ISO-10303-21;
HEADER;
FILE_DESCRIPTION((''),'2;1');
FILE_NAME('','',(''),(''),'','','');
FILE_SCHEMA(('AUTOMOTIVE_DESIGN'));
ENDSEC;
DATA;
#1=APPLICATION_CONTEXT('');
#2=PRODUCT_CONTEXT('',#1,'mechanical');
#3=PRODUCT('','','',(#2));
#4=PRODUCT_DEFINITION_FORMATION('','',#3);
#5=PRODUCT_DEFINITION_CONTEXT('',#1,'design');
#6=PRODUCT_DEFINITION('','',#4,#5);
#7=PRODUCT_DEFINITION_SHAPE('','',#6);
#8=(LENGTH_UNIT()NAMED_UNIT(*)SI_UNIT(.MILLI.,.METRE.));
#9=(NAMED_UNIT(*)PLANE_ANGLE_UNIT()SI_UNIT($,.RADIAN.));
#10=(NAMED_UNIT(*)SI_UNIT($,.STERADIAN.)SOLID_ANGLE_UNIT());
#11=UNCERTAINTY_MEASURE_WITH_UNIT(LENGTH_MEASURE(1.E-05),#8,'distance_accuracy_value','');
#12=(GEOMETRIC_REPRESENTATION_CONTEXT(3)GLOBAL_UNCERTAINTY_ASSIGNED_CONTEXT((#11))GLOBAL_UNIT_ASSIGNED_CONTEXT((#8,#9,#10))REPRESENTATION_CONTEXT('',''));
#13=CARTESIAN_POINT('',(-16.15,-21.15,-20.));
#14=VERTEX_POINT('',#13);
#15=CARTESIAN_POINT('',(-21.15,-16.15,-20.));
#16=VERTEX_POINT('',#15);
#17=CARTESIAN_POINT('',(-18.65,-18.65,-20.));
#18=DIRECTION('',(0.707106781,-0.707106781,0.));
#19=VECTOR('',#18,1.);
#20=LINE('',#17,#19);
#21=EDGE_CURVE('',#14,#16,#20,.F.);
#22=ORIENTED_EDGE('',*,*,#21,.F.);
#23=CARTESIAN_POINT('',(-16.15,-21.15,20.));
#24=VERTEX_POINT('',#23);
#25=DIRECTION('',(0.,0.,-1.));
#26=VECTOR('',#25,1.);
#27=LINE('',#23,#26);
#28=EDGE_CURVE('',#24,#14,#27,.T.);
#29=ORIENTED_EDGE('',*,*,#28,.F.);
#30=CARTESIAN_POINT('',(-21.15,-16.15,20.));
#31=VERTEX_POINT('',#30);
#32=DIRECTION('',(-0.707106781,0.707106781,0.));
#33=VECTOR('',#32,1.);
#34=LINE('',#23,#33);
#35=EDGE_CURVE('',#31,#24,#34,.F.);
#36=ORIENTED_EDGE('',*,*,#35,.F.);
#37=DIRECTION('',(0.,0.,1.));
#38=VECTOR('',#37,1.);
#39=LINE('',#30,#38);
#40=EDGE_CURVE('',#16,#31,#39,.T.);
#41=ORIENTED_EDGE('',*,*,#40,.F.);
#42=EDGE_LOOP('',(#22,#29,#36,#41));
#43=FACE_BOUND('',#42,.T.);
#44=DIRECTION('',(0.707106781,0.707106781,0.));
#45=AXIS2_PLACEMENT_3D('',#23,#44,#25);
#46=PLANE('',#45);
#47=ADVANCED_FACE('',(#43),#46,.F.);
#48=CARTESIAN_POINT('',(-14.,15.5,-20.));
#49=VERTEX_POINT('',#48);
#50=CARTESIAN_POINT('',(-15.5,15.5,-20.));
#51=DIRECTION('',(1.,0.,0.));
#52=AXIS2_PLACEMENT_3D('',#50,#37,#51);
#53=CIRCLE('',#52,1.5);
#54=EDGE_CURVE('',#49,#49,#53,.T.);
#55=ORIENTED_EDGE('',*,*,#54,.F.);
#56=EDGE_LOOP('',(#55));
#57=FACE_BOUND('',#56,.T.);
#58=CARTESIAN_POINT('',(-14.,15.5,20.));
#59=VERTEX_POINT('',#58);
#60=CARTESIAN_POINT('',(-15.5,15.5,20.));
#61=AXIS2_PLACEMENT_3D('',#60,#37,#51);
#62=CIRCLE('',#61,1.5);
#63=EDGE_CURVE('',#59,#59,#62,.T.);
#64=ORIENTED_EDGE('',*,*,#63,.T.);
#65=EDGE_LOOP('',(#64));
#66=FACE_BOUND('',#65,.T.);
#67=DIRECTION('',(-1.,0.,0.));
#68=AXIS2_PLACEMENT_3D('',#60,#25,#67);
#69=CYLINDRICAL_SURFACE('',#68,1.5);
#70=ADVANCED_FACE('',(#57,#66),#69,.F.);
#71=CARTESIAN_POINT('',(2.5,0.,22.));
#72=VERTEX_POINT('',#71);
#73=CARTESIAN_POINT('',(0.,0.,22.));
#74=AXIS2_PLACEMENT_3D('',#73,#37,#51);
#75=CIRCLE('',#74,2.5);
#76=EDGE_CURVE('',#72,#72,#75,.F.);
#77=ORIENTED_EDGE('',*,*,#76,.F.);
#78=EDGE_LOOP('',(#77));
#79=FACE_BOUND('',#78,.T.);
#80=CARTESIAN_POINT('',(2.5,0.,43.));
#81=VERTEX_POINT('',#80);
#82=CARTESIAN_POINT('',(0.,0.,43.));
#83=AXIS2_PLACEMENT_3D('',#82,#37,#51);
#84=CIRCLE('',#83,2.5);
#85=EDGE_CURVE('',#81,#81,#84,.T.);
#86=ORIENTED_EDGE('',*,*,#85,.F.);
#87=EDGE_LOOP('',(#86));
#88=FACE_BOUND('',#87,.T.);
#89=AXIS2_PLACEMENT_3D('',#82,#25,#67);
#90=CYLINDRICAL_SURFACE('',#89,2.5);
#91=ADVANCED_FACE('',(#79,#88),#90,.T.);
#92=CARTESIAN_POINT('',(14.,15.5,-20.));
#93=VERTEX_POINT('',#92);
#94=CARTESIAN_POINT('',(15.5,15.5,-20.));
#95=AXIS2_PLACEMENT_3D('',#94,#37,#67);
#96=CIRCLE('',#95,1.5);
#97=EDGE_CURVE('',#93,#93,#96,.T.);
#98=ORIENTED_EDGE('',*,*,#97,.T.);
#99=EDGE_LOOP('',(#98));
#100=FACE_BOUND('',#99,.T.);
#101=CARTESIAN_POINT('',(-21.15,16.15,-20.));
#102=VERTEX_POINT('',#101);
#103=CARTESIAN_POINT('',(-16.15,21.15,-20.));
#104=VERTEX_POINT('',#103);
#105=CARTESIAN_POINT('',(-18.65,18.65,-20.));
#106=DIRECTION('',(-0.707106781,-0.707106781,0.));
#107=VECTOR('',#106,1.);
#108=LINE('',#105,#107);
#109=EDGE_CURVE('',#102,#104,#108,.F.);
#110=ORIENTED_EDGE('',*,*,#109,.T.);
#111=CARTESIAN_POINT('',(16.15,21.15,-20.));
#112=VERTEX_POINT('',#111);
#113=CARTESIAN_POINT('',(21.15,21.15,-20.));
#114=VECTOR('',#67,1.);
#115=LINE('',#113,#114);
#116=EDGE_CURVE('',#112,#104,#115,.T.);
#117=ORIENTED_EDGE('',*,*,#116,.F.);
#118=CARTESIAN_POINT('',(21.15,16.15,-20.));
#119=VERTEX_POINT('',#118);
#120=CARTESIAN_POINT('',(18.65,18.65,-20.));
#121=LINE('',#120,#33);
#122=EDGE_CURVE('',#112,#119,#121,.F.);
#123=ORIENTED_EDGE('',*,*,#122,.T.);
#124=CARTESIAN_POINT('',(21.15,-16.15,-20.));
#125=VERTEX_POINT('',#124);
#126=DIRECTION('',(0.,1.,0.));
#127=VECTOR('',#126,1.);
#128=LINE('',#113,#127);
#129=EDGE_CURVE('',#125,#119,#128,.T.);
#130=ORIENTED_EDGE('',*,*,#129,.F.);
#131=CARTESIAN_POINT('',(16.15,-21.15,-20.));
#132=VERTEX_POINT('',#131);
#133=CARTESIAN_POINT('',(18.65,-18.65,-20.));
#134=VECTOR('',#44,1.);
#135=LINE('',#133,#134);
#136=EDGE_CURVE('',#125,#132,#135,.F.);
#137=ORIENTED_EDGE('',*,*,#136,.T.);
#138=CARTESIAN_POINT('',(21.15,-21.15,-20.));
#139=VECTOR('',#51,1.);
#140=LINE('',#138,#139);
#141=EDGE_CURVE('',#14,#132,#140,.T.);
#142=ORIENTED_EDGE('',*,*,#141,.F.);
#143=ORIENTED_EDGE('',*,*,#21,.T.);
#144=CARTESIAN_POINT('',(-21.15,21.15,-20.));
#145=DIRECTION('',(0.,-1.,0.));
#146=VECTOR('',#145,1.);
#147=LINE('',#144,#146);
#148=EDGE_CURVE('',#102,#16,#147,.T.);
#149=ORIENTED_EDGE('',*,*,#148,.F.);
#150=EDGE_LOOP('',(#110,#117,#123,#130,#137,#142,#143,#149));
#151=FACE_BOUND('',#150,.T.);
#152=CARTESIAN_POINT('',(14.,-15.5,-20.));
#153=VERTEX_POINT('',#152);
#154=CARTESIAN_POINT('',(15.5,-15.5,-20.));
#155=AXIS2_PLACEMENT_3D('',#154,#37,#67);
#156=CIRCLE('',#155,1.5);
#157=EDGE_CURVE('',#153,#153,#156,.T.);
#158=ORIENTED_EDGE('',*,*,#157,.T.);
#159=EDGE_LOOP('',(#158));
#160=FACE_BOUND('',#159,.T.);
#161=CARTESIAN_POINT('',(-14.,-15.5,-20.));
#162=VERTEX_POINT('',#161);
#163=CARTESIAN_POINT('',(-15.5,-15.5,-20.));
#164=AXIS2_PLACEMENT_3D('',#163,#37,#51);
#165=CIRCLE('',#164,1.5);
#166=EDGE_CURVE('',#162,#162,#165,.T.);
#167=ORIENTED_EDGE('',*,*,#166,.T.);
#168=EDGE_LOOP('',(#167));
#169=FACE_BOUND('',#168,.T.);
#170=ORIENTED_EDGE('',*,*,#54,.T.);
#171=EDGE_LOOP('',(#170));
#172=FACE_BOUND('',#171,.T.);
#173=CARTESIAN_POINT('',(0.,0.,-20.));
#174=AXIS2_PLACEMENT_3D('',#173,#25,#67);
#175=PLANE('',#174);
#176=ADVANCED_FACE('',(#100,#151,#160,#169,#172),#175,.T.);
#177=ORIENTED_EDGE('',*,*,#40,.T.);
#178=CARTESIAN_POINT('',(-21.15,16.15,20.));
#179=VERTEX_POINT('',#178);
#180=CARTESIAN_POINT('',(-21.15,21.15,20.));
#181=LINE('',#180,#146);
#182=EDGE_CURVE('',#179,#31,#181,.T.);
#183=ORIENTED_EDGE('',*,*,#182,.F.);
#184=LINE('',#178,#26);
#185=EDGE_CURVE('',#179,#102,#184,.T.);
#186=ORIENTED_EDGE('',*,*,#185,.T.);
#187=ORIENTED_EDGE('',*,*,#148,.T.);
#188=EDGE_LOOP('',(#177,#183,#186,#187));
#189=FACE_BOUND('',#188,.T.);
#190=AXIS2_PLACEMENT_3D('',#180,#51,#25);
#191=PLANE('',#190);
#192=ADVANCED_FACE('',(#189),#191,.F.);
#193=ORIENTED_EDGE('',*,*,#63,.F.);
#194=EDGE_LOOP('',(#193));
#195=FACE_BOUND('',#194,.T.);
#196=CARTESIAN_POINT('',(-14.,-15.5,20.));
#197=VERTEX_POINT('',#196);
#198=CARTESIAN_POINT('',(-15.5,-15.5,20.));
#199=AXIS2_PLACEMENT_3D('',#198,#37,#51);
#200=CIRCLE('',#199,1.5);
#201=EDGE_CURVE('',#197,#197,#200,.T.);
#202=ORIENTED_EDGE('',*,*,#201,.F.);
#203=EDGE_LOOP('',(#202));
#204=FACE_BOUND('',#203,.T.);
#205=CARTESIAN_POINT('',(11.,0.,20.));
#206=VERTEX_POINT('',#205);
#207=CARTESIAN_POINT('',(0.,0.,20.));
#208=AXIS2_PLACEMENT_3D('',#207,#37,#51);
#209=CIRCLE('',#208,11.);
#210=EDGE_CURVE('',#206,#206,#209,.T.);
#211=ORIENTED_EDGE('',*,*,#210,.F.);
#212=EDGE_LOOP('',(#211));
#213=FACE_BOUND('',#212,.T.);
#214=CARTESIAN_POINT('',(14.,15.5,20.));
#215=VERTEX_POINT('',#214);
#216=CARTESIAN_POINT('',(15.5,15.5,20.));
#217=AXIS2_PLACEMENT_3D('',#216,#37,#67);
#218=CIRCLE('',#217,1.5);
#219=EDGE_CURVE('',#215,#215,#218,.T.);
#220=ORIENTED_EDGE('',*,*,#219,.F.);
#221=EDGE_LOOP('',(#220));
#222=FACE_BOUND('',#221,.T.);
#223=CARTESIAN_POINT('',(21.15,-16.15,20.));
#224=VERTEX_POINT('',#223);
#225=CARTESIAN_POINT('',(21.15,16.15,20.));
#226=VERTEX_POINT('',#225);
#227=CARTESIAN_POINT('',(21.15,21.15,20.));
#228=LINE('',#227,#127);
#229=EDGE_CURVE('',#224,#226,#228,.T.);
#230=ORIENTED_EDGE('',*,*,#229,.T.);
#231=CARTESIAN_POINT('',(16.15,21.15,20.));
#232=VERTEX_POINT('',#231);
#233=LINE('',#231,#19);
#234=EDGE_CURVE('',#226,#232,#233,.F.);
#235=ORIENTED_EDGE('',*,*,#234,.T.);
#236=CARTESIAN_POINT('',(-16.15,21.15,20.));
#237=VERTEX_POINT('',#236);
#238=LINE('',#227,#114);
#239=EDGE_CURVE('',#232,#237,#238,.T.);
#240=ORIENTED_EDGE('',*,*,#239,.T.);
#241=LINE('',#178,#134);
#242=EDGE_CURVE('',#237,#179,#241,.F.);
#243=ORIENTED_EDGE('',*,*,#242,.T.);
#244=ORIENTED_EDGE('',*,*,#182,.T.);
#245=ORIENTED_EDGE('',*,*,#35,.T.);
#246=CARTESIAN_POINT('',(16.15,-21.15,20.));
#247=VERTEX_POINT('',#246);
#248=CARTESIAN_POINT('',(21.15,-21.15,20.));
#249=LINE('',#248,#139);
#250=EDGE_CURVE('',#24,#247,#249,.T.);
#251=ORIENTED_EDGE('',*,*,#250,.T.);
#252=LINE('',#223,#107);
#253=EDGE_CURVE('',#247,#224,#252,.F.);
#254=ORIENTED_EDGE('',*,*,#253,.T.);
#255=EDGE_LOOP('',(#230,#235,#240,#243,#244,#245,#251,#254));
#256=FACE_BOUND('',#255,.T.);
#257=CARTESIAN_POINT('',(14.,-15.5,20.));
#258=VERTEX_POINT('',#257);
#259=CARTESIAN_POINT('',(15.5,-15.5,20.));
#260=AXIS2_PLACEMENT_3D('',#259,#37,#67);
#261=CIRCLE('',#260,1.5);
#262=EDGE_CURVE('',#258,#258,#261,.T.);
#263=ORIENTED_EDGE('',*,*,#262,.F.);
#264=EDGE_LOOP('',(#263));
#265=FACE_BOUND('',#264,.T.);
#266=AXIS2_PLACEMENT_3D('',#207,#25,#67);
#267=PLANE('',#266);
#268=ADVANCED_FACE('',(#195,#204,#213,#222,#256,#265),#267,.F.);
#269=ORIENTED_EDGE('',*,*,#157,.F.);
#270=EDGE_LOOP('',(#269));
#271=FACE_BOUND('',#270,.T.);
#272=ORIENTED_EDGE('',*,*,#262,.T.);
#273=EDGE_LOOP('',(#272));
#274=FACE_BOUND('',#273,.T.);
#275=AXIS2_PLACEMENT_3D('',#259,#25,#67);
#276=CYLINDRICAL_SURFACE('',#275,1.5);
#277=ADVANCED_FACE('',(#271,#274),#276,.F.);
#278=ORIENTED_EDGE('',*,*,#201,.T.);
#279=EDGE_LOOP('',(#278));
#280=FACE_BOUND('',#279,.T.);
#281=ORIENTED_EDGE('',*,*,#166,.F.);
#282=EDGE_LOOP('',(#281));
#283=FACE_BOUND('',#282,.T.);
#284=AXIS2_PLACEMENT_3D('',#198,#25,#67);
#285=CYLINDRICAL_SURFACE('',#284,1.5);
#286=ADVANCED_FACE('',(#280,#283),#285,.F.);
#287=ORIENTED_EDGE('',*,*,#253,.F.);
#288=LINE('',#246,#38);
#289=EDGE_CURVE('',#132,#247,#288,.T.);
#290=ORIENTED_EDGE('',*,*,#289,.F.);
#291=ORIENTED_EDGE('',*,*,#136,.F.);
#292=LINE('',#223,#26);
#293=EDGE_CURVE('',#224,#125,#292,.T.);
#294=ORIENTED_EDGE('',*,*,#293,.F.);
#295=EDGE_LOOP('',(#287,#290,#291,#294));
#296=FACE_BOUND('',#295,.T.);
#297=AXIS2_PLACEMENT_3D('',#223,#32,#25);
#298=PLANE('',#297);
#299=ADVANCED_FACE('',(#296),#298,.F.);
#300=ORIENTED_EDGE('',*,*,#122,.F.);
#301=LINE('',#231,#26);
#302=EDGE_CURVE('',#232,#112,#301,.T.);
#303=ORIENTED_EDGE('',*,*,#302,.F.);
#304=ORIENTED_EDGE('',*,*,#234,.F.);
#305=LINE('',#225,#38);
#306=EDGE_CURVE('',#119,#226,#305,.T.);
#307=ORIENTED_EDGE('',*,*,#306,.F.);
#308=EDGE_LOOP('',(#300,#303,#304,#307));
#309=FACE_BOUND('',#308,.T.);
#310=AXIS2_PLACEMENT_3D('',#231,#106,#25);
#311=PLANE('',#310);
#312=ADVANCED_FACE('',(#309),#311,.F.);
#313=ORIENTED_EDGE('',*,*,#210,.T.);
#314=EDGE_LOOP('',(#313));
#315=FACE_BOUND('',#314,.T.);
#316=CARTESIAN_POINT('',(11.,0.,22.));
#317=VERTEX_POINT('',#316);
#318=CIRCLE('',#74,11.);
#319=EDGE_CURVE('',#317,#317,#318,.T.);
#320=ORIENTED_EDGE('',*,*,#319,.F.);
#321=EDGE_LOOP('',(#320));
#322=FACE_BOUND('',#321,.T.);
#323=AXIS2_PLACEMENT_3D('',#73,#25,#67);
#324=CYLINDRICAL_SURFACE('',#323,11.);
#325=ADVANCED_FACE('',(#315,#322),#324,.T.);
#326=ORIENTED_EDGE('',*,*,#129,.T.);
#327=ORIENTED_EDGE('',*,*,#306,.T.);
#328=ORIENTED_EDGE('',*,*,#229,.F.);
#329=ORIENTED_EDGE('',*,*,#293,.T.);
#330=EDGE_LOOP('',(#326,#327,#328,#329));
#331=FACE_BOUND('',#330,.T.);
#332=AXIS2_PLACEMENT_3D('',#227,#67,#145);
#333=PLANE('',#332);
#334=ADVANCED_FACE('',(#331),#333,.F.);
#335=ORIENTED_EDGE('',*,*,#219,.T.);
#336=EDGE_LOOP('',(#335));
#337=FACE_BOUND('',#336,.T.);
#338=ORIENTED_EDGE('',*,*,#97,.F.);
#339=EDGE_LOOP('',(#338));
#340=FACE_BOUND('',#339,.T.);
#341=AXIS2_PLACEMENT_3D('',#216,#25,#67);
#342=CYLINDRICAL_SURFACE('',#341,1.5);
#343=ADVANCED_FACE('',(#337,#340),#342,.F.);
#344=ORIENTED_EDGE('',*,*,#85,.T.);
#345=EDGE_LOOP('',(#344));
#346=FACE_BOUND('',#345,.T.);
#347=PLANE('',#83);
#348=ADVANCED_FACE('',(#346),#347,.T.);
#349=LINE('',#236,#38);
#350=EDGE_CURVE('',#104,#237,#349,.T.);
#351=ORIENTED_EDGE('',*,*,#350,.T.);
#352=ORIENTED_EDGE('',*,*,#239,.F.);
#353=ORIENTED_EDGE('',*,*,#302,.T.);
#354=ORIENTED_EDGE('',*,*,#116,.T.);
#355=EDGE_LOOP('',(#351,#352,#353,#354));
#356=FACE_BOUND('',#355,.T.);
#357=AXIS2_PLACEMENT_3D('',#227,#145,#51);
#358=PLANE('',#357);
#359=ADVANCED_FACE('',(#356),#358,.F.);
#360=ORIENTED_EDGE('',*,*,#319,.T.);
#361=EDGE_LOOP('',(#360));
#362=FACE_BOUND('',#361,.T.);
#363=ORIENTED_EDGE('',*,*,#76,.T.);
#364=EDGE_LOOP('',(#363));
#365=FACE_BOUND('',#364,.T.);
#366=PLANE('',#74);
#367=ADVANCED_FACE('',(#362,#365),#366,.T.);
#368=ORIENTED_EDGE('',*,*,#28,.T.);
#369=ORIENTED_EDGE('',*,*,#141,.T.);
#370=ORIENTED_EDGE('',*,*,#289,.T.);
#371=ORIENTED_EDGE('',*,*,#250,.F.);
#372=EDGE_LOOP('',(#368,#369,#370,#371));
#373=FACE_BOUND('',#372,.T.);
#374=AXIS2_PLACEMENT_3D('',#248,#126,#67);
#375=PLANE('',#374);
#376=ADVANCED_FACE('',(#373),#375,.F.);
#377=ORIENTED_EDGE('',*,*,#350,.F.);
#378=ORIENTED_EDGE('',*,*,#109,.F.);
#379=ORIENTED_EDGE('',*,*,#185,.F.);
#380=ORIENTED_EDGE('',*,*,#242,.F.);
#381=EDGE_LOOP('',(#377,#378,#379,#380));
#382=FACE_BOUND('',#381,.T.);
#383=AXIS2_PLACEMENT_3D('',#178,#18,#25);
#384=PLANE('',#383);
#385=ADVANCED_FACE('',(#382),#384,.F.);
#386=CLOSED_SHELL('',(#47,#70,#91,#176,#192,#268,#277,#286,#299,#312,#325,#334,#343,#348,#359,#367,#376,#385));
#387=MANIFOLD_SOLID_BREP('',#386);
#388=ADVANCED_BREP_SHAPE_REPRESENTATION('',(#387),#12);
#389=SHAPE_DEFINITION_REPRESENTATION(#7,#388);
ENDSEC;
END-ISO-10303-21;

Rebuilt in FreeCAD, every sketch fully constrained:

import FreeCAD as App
import Part
import Sketcher


def edges_at(feature, points):
    """Names of the edges that pass closest to the given points."""
    edges = feature.Shape.Edges
    near = lambda p: min(range(len(edges)), key=lambda i: edges[i].distToShape(Part.Vertex(*p))[0])
    return sorted({f"Edge{near(p) + 1}" for p in points})


def add_polygon(sketch, points):
    """Adds a closed chain of lines whose ends are joined by coincident constraints."""
    first, n = sketch.GeometryCount, len(points)
    for a, b in zip(points, points[1:] + points[:1]):
        sketch.addGeometry(Part.LineSegment(App.Vector(*a, 0), App.Vector(*b, 0)), False)
    for i in range(n):
        sketch.addConstraint(Sketcher.Constraint("Coincident", first + i, 2, first + (i + 1) % n, 1))

doc = App.newDocument("Part")
body = doc.addObject("PartDesign::Body", "Body")

# Sketch on XY plane
sketch1 = body.newObject("Sketcher::SketchObject", "Sketch")
sketch1.AttachmentSupport = (doc.getObject("XY_Plane"), [""])
sketch1.MapMode = "FlatFace"
add_polygon(sketch1, [(-21.1, 21.1), (-21.1, -21.1), (21.1, -21.1), (21.1, 21.1)])  # lines 0-3
sketch1.addGeometry(Part.Circle(App.Vector(-15.5, -15.5, 0), App.Vector(0, 0, 1), 1.5), False)  # 4
sketch1.addGeometry(Part.Circle(App.Vector(15.5, -15.5, 0), App.Vector(0, 0, 1), 1.5), False)  # 5
sketch1.addGeometry(Part.Circle(App.Vector(-15.5, 15.5, 0), App.Vector(0, 0, 1), 1.5), False)  # 6
sketch1.addGeometry(Part.Circle(App.Vector(15.5, 15.5, 0), App.Vector(0, 0, 1), 1.5), False)  # 7
sketch1.addConstraint([
    Sketcher.Constraint("Vertical", 0),
    Sketcher.Constraint("Horizontal", 1),
    Sketcher.Constraint("Vertical", 2),
    Sketcher.Constraint("Horizontal", 3),
    Sketcher.Constraint("Equal", 4, 5),
    Sketcher.Constraint("Equal", 5, 6),
    Sketcher.Constraint("Equal", 6, 7),
    Sketcher.Constraint("Symmetric", 5, 3, 6, 3, -1, 1),
    Sketcher.Constraint("Symmetric", 4, 3, 7, 3, -1, 1),
    Sketcher.Constraint("Symmetric", 0, 2, 2, 2, -1, 1),
    Sketcher.Constraint("Symmetric", 4, 3, 5, 3, -2),
    Sketcher.Constraint("Equal", 3, 0),
    Sketcher.Constraint("Diameter", 4, 3.0),
    Sketcher.Constraint("DistanceX", 1, 1, 1, 2, 42.3),
    Sketcher.Constraint("DistanceX", 4, 3, 5, 3, 31.0),
    Sketcher.Constraint("DistanceY", 4, 3, 6, 3, 31.0),
])
pad1 = body.newObject("PartDesign::Pad", "Pad")
pad1.Profile = sketch1
pad1.Length = 40
pad1.Midplane = True

# Sketch on XY plane
sketch2 = body.newObject("Sketcher::SketchObject", "Sketch001")
sketch2.AttachmentSupport = (doc.getObject("XY_Plane"), [""])
sketch2.MapMode = "FlatFace"
sketch2.AttachmentOffset = App.Placement(App.Vector(0, 0, 20), App.Rotation())
sketch2.addGeometry(Part.Circle(App.Vector(0, 0, 0), App.Vector(0, 0, 1), 11), False)
sketch2.addConstraint([
    Sketcher.Constraint("Coincident", 0, 3, -1, 1),
    Sketcher.Constraint("Diameter", 0, 22.0),
])
pad2 = body.newObject("PartDesign::Pad", "Pad001")
pad2.Profile = sketch2
pad2.Length = 2

# Sketch on XY plane
sketch3 = body.newObject("Sketcher::SketchObject", "Sketch002")
sketch3.AttachmentSupport = (doc.getObject("XY_Plane"), [""])
sketch3.MapMode = "FlatFace"
sketch3.AttachmentOffset = App.Placement(App.Vector(0, 0, 20), App.Rotation())
sketch3.addGeometry(Part.Circle(App.Vector(0, 0, 0), App.Vector(0, 0, 1), 2.5), False)
sketch3.addConstraint([
    Sketcher.Constraint("Coincident", 0, 3, -1, 1),
    Sketcher.Constraint("Diameter", 0, 5.0),
])
pad3 = body.newObject("PartDesign::Pad", "Pad002")
pad3.Profile = sketch3
pad3.Length = 23
doc.recompute()

chamfer = body.newObject("PartDesign::Chamfer", "Chamfer")
chamfer.Base = (pad3, edges_at(pad3, [
    (-21.15, 21.15, 0),
    (21.15, 21.15, 0),
    (21.15, -21.15, 0),
    (-21.15, -21.15, 0),
]))
chamfer.Size = 5

doc.recompute()
